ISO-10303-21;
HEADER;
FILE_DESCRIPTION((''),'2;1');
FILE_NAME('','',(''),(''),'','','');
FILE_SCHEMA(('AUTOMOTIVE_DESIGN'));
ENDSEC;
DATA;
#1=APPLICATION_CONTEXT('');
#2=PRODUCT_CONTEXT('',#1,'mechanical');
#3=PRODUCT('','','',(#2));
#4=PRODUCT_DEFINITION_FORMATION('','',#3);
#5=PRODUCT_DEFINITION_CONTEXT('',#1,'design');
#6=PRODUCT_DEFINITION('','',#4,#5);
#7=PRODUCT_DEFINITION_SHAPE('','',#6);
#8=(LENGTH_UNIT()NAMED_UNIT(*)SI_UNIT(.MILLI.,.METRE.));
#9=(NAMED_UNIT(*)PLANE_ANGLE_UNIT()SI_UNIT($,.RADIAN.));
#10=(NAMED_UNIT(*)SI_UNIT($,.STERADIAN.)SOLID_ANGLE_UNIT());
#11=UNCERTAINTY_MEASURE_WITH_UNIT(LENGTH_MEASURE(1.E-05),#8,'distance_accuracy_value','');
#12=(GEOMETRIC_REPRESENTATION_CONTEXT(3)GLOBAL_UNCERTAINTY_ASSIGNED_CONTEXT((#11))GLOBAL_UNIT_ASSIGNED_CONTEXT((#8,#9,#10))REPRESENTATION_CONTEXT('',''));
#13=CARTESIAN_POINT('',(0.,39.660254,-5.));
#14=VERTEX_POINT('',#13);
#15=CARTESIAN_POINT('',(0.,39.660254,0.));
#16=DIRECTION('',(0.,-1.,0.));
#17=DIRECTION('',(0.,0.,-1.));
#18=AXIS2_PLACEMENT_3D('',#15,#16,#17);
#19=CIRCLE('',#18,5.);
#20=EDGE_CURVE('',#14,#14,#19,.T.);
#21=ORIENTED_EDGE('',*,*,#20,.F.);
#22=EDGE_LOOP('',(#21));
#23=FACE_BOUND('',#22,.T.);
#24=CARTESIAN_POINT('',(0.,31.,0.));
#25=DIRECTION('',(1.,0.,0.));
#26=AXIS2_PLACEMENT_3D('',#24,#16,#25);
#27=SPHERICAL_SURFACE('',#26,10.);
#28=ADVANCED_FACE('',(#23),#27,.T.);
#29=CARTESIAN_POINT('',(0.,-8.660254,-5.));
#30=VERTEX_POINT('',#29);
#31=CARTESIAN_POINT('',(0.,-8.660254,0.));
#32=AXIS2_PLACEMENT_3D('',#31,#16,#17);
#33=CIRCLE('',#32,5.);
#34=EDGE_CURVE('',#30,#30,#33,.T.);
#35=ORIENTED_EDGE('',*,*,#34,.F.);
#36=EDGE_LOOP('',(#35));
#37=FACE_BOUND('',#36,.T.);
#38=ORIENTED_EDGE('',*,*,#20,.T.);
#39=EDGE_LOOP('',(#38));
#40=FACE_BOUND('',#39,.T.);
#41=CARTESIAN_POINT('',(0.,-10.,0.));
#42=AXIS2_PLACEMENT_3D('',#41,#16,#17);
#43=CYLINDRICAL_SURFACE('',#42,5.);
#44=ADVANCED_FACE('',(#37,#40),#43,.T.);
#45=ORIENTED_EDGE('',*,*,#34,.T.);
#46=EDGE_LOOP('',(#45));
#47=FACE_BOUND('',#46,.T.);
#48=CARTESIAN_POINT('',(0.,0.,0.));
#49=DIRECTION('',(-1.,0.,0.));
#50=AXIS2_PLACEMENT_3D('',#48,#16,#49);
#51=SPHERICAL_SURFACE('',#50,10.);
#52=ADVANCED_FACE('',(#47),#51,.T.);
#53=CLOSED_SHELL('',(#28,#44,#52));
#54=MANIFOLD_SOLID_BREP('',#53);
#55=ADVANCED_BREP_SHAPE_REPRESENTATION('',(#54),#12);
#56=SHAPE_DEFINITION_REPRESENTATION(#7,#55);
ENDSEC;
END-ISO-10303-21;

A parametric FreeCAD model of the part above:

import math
import FreeCAD as App
import Part
import Sketcher
from FreeCAD import Vector
Q = App.Units.Quantity

doc = App.newDocument("Part")
params = doc.addObject("Spreadsheet::Sheet", "Params")
for row, (alias, value) in enumerate([
    ("sketch1_radius", "10 mm"),
    ("sketch1_height", "51 mm"),
    ("revolution_angle", "360 deg"),
], start=1):
    params.set(f"A{row}", alias)
    params.set(f"B{row}", "=" + value)
    params.setAlias(f"B{row}", alias)

body = doc.addObject("PartDesign::Body", "Body")

sketch1 = doc.addObject("Sketcher::SketchObject", "Sketch")
body.addObject(sketch1)
sketch1.AttachmentSupport = (doc.XY_Plane, [""])
sketch1.MapMode = "FlatFace"
sketch1.addGeometry([
    Part.LineSegment(Vector(0, 41, 0), Vector(0, -10, 0)),
    Part.ArcOfCircle(Part.Circle(Vector(0, 0, 0), Vector(0, 0, 1), 10), math.radians(-90), math.radians(-60)),
    Part.LineSegment(Vector(5, -9, 0), Vector(5, 40, 0)),
    Part.ArcOfCircle(Part.Circle(Vector(0, 31, 0), Vector(0, 0, 1), 10), math.radians(60), math.radians(90)),
], False)
sketch1.addConstraint([
    Sketcher.Constraint("Coincident", 0, 2, 1, 1),
    Sketcher.Constraint("Coincident", 1, 2, 2, 1),
    Sketcher.Constraint("Coincident", 2, 2, 3, 1),
    Sketcher.Constraint("Coincident", 3, 2, 0, 1),
    Sketcher.Constraint("Vertical", 0),
    Sketcher.Constraint("Vertical", 2),
    Sketcher.Constraint("Coincident", 1, 3, -1, 1),
    Sketcher.Constraint("Equal", 1, 3),
    Sketcher.Constraint("PointOnObject", 3, 3, -2),
    Sketcher.Constraint("PointOnObject", 0, 2, -2),
    Sketcher.Constraint("Radius", 1, Q("10 mm")),
    Sketcher.Constraint("DistanceY", 0, 2, 0, 1, Q("51 mm")),
    Sketcher.Constraint("DistanceX", -1, 1, 1, 2, Q("5 mm")),
])
sketch1.setExpression("Constraints[10]", "Params.sketch1_radius")
sketch1.setExpression("Constraints[11]", "Params.sketch1_height")
revolution = doc.addObject("PartDesign::Revolution", "Revolution")
body.addObject(revolution)
revolution.Profile = sketch1
revolution.ReferenceAxis = (sketch1, ["V_Axis"])
revolution.setExpression("Angle", "Params.revolution_angle")

doc.recompute()
